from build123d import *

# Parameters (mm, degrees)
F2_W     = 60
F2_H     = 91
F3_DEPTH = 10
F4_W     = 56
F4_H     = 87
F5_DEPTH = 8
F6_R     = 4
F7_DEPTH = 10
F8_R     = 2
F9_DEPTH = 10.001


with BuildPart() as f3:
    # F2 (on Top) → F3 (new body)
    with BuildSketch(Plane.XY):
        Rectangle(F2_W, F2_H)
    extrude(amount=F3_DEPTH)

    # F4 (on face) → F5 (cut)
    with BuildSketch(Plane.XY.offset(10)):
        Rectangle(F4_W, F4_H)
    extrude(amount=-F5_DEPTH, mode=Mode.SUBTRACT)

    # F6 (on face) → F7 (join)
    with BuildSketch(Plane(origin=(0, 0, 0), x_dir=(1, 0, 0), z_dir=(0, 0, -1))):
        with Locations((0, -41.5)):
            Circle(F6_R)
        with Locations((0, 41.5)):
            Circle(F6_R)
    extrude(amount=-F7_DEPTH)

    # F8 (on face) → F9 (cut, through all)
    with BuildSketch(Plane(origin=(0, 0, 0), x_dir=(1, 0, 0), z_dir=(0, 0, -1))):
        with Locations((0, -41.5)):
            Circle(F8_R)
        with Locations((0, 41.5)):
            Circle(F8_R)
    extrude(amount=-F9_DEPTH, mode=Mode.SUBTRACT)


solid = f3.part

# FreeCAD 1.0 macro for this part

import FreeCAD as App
import Part
import Sketcher

V = App.Vector


def add_polygon(sketch, points):
    """Adds a closed chain of lines whose ends are joined by coincident constraints."""
    first, n = sketch.GeometryCount, len(points)
    for a, b in zip(points, points[1:] + points[:1]):
        sketch.addGeometry(Part.LineSegment(App.Vector(*a, 0), App.Vector(*b, 0)), False)
    for i in range(n):
        sketch.addConstraint(Sketcher.Constraint("Coincident", first + i, 2, first + (i + 1) % n, 1))

doc = App.newDocument("Part")
params = doc.addObject("Spreadsheet::Sheet", "Params")
for row, (alias, value) in enumerate([
    ("sketch1_width", "60 mm"),
    ("sketch1_height", "91 mm"),
    ("pad1_length", "10 mm"),
    ("sketch2_width", "56 mm"),
    ("sketch2_height", "87 mm"),
    ("pocket1_length", "8 mm"),
    ("sketch3_diameter", "8 mm"),
    ("pad2_length", "10 mm"),
    ("sketch4_diameter", "4 mm"),
], start=1):
    params.set(f"A{row}", alias)
    params.set(f"B{row}", "=" + value)
    params.setAlias(f"B{row}", alias)

body = doc.addObject("PartDesign::Body", "Body")

sketch1 = body.newObject("Sketcher::SketchObject", "Sketch")
sketch1.AttachmentSupport = (doc.getObject("XY_Plane"), [""])
sketch1.MapMode = "FlatFace"
add_polygon(sketch1, [(-30, 46), (-30, -46), (30, -46), (30, 46)])
sketch1.addConstraint(Sketcher.Constraint("Vertical", 0))
sketch1.addConstraint(Sketcher.Constraint("Horizontal", 1))
sketch1.addConstraint(Sketcher.Constraint("Vertical", 2))
sketch1.addConstraint(Sketcher.Constraint("Horizontal", 3))
sketch1.addConstraint(Sketcher.Constraint("Symmetric", 0, 2, 2, 2, -1, 1))
sketch1.addConstraint(Sketcher.Constraint("DistanceX", 1, 1, 1, 2, 60.0))
sketch1.addConstraint(Sketcher.Constraint("DistanceY", 0, 2, 0, 1, 91.0))
sketch1.setExpression("Constraints[9]", "Params.sketch1_width")
sketch1.setExpression("Constraints[10]", "Params.sketch1_height")
pad1 = body.newObject("PartDesign::Pad", "Pad")
pad1.Profile = sketch1
pad1.setExpression("Length", "Params.pad1_length")

sketch2 = body.newObject("Sketcher::SketchObject", "Sketch001")
sketch2.AttachmentSupport = (doc.getObject("XY_Plane"), [""])
sketch2.MapMode = "FlatFace"
sketch2.AttachmentOffset = App.Placement(V(0, 0, 10), App.Rotation())
add_polygon(sketch2, [(-28, 44), (-28, -44), (28, -44), (28, 44)])
sketch2.addConstraint(Sketcher.Constraint("Vertical", 0))
sketch2.addConstraint(Sketcher.Constraint("Horizontal", 1))
sketch2.addConstraint(Sketcher.Constraint("Vertical", 2))
sketch2.addConstraint(Sketcher.Constraint("Horizontal", 3))
sketch2.addConstraint(Sketcher.Constraint("Symmetric", 0, 2, 2, 2, -1, 1))
sketch2.addConstraint(Sketcher.Constraint("DistanceX", 1, 1, 1, 2, 56.0))
sketch2.addConstraint(Sketcher.Constraint("DistanceY", 0, 2, 0, 1, 87.0))
sketch2.setExpression("Constraints[9]", "Params.sketch2_width")
sketch2.setExpression("Constraints[10]", "Params.sketch2_height")
pocket1 = body.newObject("PartDesign::Pocket", "Pocket")
pocket1.Profile = sketch2
pocket1.setExpression("Length", "Params.pocket1_length")

sketch3 = body.newObject("Sketcher::SketchObject", "Sketch002")
sketch3.AttachmentSupport = (doc.getObject("XY_Plane"), [""])
sketch3.MapMode = "FlatFace"
sketch3.addGeometry(Part.Circle(V(0, 41.5, 0), V(0, 0, 1), 4), False)
sketch3.addGeometry(Part.Circle(V(0, -41.5, 0), V(0, 0, 1), 4), False)
sketch3.addConstraint(Sketcher.Constraint("Equal", 0, 1))
sketch3.addConstraint(Sketcher.Constraint("Symmetric", 0, 3, 1, 3, -1, 1))
sketch3.addConstraint(Sketcher.Constraint("PointOnObject", 0, 3, -2))
sketch3.addConstraint(Sketcher.Constraint("Diameter", 0, 8.0))
sketch3.addConstraint(Sketcher.Constraint("DistanceY", 1, 3, 0, 3, 83.0))
sketch3.setExpression("Constraints[3]", "Params.sketch3_diameter")
pad2 = body.newObject("PartDesign::Pad", "Pad001")
pad2.Profile = sketch3
pad2.setExpression("Length", "Params.pad2_length")

sketch4 = body.newObject("Sketcher::SketchObject", "Sketch003")
sketch4.AttachmentSupport = (doc.getObject("XY_Plane"), [""])
sketch4.MapMode = "FlatFace"
sketch4.addGeometry(Part.Circle(V(0, 41.5, 0), V(0, 0, 1), 2), False)
sketch4.addGeometry(Part.Circle(V(0, -41.5, 0), V(0, 0, 1), 2), False)
sketch4.addConstraint(Sketcher.Constraint("Equal", 0, 1))
sketch4.addConstraint(Sketcher.Constraint("Symmetric", 0, 3, 1, 3, -1, 1))
sketch4.addConstraint(Sketcher.Constraint("PointOnObject", 0, 3, -2))
sketch4.addConstraint(Sketcher.Constraint("Diameter", 0, 4.0))
sketch4.addConstraint(Sketcher.Constraint("DistanceY", 1, 3, 0, 3, 83.0))
sketch4.setExpression("Constraints[3]", "Params.sketch4_diameter")
pocket2 = body.newObject("PartDesign::Pocket", "Pocket001")
pocket2.Profile = sketch4
pocket2.Type = "ThroughAll"
pocket2.Reversed = True

doc.recompute()
